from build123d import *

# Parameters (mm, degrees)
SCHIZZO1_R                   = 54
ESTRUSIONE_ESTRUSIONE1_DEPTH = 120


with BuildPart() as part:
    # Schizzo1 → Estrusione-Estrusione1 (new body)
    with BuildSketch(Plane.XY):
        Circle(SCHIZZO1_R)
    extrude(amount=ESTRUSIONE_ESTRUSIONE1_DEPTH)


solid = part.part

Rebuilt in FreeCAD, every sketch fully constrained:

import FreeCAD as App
import Part
import Sketcher

V = App.Vector
Q = App.Units.Quantity

doc = App.newDocument("Part")
params = doc.addObject("Spreadsheet::Sheet", "Params")
for row, (alias, value) in enumerate([
    ("sketch1_diameter", "108 mm"),
    ("pad1_length", "120 mm"),
], start=1):
    params.set(f"A{row}", alias)
    params.set(f"B{row}", "=" + value)
    params.setAlias(f"B{row}", alias)

body = doc.addObject("PartDesign::Body", "Body")

# Sketch on XY plane
sketch1 = body.newObject("Sketcher::SketchObject", "Sketch")
sketch1.AttachmentSupport = (doc.getObject("XY_Plane"), [""])
sketch1.MapMode = "FlatFace"
sketch1.addGeometry(Part.Circle(V(0, 0, 0), V(0, 0, 1), 54), False)
sketch1.addConstraint(Sketcher.Constraint("Coincident", 0, 3, -1, 1))
sketch1.addConstraint(Sketcher.Constraint("Diameter", 0, Q("108 mm")))
sketch1.setExpression("Constraints[1]", "Params.sketch1_diameter")
pad1 = body.newObject("PartDesign::Pad", "Pad")
pad1.Profile = sketch1
pad1.setExpression("Length", "Params.pad1_length")

doc.recompute()
